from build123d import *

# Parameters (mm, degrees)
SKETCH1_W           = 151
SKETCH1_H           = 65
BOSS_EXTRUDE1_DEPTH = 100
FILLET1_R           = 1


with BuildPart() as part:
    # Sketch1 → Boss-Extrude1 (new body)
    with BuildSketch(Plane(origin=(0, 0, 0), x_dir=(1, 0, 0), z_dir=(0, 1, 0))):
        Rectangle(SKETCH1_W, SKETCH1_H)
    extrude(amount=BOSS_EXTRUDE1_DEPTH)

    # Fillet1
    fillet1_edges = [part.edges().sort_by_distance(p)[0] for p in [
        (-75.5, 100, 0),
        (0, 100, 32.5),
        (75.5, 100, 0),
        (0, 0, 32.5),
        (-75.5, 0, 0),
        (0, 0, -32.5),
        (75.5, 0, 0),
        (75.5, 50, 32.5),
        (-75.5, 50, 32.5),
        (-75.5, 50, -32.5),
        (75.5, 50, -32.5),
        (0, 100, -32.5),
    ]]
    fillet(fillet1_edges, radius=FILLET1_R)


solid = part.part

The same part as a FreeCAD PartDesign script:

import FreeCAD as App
import Part
import Sketcher
from FreeCAD import Vector
Q = App.Units.Quantity


def add_polygon(sketch, points):
    """Adds a closed chain of lines whose ends are joined by coincident constraints."""
    first, n = sketch.GeometryCount, len(points)
    for a, b in zip(points, points[1:] + points[:1]):
        sketch.addGeometry(Part.LineSegment(App.Vector(*a, 0), App.Vector(*b, 0)), False)
    for i in range(n):
        sketch.addConstraint(Sketcher.Constraint("Coincident", first + i, 2, first + (i + 1) % n, 1))

doc = App.newDocument("Part")
body = doc.addObject("PartDesign::Body", "Body")

sketch1 = body.newObject("Sketcher::SketchObject", "Sketch")
sketch1.AttachmentSupport = (doc.getObject("XZ_Plane"), [""])
sketch1.MapMode = "FlatFace"
add_polygon(sketch1, [(-76, -32), (-76, 32), (76, 32), (76, -32)])
sketch1.addConstraint(Sketcher.Constraint("Vertical", 0))
sketch1.addConstraint(Sketcher.Constraint("Horizontal", 1))
sketch1.addConstraint(Sketcher.Constraint("Vertical", 2))
sketch1.addConstraint(Sketcher.Constraint("Horizontal", 3))
sketch1.addConstraint(Sketcher.Constraint("Symmetric", 0, 2, 2, 2, -1, 1))
sketch1.addConstraint(Sketcher.Constraint("DistanceX", 1, 1, 1, 2, Q("151 mm")))
sketch1.addConstraint(Sketcher.Constraint("DistanceY", 0, 1, 0, 2, Q("65 mm")))
pad1 = body.newObject("PartDesign::Pad", "Pad")
pad1.Profile = sketch1
pad1.Length = 100
pad1.Reversed = True
doc.recompute()

fillet = body.newObject("PartDesign::Fillet", "Fillet")
fillet.Base = (pad1, ["Edge1"])
fillet.UseAllEdges = True
fillet.Radius = 1

doc.recompute()
